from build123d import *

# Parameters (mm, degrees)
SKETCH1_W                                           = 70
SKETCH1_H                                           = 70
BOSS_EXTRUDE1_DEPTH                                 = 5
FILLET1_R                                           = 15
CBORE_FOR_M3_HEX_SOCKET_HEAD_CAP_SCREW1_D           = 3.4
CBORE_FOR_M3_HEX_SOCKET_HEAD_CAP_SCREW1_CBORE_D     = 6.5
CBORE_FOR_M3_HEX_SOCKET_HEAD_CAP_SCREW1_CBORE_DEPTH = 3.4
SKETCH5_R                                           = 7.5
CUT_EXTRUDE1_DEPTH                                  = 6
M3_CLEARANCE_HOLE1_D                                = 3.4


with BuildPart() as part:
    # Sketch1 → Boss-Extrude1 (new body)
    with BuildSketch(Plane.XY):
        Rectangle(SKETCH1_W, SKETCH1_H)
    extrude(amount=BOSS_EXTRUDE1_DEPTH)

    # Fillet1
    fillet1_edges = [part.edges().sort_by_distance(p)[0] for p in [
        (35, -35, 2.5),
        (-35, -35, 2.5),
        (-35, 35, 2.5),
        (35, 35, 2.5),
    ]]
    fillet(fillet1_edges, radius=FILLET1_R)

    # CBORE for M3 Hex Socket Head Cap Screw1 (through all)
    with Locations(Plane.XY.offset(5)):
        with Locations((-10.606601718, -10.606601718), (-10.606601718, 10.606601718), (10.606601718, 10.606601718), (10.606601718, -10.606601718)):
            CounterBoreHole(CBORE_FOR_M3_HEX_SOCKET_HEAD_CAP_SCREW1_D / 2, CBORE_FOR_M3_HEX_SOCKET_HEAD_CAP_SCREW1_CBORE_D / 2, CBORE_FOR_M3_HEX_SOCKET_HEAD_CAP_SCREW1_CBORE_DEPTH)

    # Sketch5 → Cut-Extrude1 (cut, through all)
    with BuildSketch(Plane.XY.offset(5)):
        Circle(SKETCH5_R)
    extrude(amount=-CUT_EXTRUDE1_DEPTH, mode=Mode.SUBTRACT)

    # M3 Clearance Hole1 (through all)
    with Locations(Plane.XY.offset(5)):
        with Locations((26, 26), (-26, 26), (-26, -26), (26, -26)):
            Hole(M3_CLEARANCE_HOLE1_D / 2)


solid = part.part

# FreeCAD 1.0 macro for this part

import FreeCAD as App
import Part
import Sketcher

V = App.Vector


def edges_at(feature, points):
    """Names of the edges that pass closest to the given points."""
    edges = feature.Shape.Edges
    near = lambda p: min(range(len(edges)), key=lambda i: edges[i].distToShape(Part.Vertex(*p))[0])
    return sorted({f"Edge{near(p) + 1}" for p in points})


def add_polygon(sketch, points):
    """Adds a closed chain of lines whose ends are joined by coincident constraints."""
    first, n = sketch.GeometryCount, len(points)
    for a, b in zip(points, points[1:] + points[:1]):
        sketch.addGeometry(Part.LineSegment(App.Vector(*a, 0), App.Vector(*b, 0)), False)
    for i in range(n):
        sketch.addConstraint(Sketcher.Constraint("Coincident", first + i, 2, first + (i + 1) % n, 1))

doc = App.newDocument("Part")
body = doc.addObject("PartDesign::Body", "Body")

sketch1 = body.newObject("Sketcher::SketchObject", "Sketch")
sketch1.AttachmentSupport = (doc.getObject("XY_Plane"), [""])
sketch1.MapMode = "FlatFace"
add_polygon(sketch1, [(-35, 35), (-35, -35), (35, -35), (35, 35)])
sketch1.addConstraint([
    Sketcher.Constraint("Vertical", 0),
    Sketcher.Constraint("Horizontal", 1),
    Sketcher.Constraint("Vertical", 2),
    Sketcher.Constraint("Horizontal", 3),
    Sketcher.Constraint("Symmetric", 0, 2, 2, 2, -1, 1),
    Sketcher.Constraint("Equal", 3, 0),
    Sketcher.Constraint("DistanceX", 1, 1, 1, 2, 70.0),
])
pad1 = body.newObject("PartDesign::Pad", "Pad")
pad1.Profile = sketch1
pad1.Length = 5
doc.recompute()

fillet = body.newObject("PartDesign::Fillet", "Fillet")
fillet.Base = (pad1, edges_at(pad1, [
    (35, -35, 2.5),
    (-35, -35, 2.5),
    (-35, 35, 2.5),
    (35, 35, 2.5),
]))
fillet.Radius = 15

sketch2 = body.newObject("Sketcher::SketchObject", "Sketch001")
sketch2.AttachmentSupport = (doc.getObject("XY_Plane"), [""])
sketch2.MapMode = "FlatFace"
sketch2.AttachmentOffset = App.Placement(V(0, 0, 5), App.Rotation())
sketch2.addGeometry([
    Part.Circle(V(-10.6, -10.6, 0), V(0, 0, 1), 1.7),
    Part.Circle(V(-10.6, 10.6, 0), V(0, 0, 1), 1.7),
    Part.Circle(V(10.6, 10.6, 0), V(0, 0, 1), 1.7),
    Part.Circle(V(10.6, -10.6, 0), V(0, 0, 1), 1.7),
], False)
sketch2.addConstraint([
    Sketcher.Constraint("Equal", 0, 1),
    Sketcher.Constraint("Equal", 1, 2),
    Sketcher.Constraint("Equal", 2, 3),
    Sketcher.Constraint("Symmetric", 0, 3, 2, 3, -1, 1),
    Sketcher.Constraint("Symmetric", 1, 3, 3, 3, -1, 1),
    Sketcher.Constraint("Symmetric", 1, 3, 2, 3, -2),
    Sketcher.Constraint("Diameter", 0, 3.4),
    Sketcher.Constraint("DistanceX", 0, 3, -1, 1, 10.606602),
    Sketcher.Constraint("DistanceY", 0, 3, -1, 1, 10.606602),
])
doc.recompute()
hole = body.newObject("PartDesign::Hole", "Hole")
hole.Profile = sketch2
hole.ThreadType = "None"
hole.Diameter = 3.4
hole.DepthType = "ThroughAll"
hole.HoleCutType = "Counterbore"
hole.HoleCutDiameter = 6.5
hole.HoleCutDepth = 3.4

sketch3 = body.newObject("Sketcher::SketchObject", "Sketch002")
sketch3.AttachmentSupport = (doc.getObject("XY_Plane"), [""])
sketch3.MapMode = "FlatFace"
sketch3.AttachmentOffset = App.Placement(V(0, 0, 5), App.Rotation())
sketch3.addGeometry(Part.Circle(V(0, 0, 0), V(0, 0, 1), 8), False)
sketch3.addConstraint([
    Sketcher.Constraint("Coincident", 0, 3, -1, 1),
    Sketcher.Constraint("Diameter", 0, 15.0),
])
pocket1 = body.newObject("PartDesign::Pocket", "Pocket")
pocket1.Profile = sketch3
pocket1.Type = "ThroughAll"

sketch4 = body.newObject("Sketcher::SketchObject", "Sketch003")
sketch4.AttachmentSupport = (doc.getObject("XY_Plane"), [""])
sketch4.MapMode = "FlatFace"
sketch4.AttachmentOffset = App.Placement(V(0, 0, 5), App.Rotation())
sketch4.addGeometry([
    Part.Circle(V(26, 26, 0), V(0, 0, 1), 1.7),
    Part.Circle(V(-26, 26, 0), V(0, 0, 1), 1.7),
    Part.Circle(V(-26, -26, 0), V(0, 0, 1), 1.7),
    Part.Circle(V(26, -26, 0), V(0, 0, 1), 1.7),
], False)
sketch4.addConstraint([
    Sketcher.Constraint("Equal", 0, 1),
    Sketcher.Constraint("Equal", 1, 2),
    Sketcher.Constraint("Equal", 2, 3),
    Sketcher.Constraint("Symmetric", 0, 3, 2, 3, -1, 1),
    Sketcher.Constraint("Symmetric", 1, 3, 3, 3, -1, 1),
    Sketcher.Constraint("Symmetric", 0, 3, 1, 3, -2),
    Sketcher.Constraint("Diameter", 0, 3.4),
    Sketcher.Constraint("DistanceX", -1, 1, 0, 3, 26.0),
    Sketcher.Constraint("DistanceY", -1, 1, 0, 3, 26.0),
])
doc.recompute()
hole2 = body.newObject("PartDesign::Hole", "Hole001")
hole2.Profile = sketch4
hole2.ThreadType = "None"
hole2.Diameter = 3.4
hole2.DepthType = "ThroughAll"

doc.recompute()
